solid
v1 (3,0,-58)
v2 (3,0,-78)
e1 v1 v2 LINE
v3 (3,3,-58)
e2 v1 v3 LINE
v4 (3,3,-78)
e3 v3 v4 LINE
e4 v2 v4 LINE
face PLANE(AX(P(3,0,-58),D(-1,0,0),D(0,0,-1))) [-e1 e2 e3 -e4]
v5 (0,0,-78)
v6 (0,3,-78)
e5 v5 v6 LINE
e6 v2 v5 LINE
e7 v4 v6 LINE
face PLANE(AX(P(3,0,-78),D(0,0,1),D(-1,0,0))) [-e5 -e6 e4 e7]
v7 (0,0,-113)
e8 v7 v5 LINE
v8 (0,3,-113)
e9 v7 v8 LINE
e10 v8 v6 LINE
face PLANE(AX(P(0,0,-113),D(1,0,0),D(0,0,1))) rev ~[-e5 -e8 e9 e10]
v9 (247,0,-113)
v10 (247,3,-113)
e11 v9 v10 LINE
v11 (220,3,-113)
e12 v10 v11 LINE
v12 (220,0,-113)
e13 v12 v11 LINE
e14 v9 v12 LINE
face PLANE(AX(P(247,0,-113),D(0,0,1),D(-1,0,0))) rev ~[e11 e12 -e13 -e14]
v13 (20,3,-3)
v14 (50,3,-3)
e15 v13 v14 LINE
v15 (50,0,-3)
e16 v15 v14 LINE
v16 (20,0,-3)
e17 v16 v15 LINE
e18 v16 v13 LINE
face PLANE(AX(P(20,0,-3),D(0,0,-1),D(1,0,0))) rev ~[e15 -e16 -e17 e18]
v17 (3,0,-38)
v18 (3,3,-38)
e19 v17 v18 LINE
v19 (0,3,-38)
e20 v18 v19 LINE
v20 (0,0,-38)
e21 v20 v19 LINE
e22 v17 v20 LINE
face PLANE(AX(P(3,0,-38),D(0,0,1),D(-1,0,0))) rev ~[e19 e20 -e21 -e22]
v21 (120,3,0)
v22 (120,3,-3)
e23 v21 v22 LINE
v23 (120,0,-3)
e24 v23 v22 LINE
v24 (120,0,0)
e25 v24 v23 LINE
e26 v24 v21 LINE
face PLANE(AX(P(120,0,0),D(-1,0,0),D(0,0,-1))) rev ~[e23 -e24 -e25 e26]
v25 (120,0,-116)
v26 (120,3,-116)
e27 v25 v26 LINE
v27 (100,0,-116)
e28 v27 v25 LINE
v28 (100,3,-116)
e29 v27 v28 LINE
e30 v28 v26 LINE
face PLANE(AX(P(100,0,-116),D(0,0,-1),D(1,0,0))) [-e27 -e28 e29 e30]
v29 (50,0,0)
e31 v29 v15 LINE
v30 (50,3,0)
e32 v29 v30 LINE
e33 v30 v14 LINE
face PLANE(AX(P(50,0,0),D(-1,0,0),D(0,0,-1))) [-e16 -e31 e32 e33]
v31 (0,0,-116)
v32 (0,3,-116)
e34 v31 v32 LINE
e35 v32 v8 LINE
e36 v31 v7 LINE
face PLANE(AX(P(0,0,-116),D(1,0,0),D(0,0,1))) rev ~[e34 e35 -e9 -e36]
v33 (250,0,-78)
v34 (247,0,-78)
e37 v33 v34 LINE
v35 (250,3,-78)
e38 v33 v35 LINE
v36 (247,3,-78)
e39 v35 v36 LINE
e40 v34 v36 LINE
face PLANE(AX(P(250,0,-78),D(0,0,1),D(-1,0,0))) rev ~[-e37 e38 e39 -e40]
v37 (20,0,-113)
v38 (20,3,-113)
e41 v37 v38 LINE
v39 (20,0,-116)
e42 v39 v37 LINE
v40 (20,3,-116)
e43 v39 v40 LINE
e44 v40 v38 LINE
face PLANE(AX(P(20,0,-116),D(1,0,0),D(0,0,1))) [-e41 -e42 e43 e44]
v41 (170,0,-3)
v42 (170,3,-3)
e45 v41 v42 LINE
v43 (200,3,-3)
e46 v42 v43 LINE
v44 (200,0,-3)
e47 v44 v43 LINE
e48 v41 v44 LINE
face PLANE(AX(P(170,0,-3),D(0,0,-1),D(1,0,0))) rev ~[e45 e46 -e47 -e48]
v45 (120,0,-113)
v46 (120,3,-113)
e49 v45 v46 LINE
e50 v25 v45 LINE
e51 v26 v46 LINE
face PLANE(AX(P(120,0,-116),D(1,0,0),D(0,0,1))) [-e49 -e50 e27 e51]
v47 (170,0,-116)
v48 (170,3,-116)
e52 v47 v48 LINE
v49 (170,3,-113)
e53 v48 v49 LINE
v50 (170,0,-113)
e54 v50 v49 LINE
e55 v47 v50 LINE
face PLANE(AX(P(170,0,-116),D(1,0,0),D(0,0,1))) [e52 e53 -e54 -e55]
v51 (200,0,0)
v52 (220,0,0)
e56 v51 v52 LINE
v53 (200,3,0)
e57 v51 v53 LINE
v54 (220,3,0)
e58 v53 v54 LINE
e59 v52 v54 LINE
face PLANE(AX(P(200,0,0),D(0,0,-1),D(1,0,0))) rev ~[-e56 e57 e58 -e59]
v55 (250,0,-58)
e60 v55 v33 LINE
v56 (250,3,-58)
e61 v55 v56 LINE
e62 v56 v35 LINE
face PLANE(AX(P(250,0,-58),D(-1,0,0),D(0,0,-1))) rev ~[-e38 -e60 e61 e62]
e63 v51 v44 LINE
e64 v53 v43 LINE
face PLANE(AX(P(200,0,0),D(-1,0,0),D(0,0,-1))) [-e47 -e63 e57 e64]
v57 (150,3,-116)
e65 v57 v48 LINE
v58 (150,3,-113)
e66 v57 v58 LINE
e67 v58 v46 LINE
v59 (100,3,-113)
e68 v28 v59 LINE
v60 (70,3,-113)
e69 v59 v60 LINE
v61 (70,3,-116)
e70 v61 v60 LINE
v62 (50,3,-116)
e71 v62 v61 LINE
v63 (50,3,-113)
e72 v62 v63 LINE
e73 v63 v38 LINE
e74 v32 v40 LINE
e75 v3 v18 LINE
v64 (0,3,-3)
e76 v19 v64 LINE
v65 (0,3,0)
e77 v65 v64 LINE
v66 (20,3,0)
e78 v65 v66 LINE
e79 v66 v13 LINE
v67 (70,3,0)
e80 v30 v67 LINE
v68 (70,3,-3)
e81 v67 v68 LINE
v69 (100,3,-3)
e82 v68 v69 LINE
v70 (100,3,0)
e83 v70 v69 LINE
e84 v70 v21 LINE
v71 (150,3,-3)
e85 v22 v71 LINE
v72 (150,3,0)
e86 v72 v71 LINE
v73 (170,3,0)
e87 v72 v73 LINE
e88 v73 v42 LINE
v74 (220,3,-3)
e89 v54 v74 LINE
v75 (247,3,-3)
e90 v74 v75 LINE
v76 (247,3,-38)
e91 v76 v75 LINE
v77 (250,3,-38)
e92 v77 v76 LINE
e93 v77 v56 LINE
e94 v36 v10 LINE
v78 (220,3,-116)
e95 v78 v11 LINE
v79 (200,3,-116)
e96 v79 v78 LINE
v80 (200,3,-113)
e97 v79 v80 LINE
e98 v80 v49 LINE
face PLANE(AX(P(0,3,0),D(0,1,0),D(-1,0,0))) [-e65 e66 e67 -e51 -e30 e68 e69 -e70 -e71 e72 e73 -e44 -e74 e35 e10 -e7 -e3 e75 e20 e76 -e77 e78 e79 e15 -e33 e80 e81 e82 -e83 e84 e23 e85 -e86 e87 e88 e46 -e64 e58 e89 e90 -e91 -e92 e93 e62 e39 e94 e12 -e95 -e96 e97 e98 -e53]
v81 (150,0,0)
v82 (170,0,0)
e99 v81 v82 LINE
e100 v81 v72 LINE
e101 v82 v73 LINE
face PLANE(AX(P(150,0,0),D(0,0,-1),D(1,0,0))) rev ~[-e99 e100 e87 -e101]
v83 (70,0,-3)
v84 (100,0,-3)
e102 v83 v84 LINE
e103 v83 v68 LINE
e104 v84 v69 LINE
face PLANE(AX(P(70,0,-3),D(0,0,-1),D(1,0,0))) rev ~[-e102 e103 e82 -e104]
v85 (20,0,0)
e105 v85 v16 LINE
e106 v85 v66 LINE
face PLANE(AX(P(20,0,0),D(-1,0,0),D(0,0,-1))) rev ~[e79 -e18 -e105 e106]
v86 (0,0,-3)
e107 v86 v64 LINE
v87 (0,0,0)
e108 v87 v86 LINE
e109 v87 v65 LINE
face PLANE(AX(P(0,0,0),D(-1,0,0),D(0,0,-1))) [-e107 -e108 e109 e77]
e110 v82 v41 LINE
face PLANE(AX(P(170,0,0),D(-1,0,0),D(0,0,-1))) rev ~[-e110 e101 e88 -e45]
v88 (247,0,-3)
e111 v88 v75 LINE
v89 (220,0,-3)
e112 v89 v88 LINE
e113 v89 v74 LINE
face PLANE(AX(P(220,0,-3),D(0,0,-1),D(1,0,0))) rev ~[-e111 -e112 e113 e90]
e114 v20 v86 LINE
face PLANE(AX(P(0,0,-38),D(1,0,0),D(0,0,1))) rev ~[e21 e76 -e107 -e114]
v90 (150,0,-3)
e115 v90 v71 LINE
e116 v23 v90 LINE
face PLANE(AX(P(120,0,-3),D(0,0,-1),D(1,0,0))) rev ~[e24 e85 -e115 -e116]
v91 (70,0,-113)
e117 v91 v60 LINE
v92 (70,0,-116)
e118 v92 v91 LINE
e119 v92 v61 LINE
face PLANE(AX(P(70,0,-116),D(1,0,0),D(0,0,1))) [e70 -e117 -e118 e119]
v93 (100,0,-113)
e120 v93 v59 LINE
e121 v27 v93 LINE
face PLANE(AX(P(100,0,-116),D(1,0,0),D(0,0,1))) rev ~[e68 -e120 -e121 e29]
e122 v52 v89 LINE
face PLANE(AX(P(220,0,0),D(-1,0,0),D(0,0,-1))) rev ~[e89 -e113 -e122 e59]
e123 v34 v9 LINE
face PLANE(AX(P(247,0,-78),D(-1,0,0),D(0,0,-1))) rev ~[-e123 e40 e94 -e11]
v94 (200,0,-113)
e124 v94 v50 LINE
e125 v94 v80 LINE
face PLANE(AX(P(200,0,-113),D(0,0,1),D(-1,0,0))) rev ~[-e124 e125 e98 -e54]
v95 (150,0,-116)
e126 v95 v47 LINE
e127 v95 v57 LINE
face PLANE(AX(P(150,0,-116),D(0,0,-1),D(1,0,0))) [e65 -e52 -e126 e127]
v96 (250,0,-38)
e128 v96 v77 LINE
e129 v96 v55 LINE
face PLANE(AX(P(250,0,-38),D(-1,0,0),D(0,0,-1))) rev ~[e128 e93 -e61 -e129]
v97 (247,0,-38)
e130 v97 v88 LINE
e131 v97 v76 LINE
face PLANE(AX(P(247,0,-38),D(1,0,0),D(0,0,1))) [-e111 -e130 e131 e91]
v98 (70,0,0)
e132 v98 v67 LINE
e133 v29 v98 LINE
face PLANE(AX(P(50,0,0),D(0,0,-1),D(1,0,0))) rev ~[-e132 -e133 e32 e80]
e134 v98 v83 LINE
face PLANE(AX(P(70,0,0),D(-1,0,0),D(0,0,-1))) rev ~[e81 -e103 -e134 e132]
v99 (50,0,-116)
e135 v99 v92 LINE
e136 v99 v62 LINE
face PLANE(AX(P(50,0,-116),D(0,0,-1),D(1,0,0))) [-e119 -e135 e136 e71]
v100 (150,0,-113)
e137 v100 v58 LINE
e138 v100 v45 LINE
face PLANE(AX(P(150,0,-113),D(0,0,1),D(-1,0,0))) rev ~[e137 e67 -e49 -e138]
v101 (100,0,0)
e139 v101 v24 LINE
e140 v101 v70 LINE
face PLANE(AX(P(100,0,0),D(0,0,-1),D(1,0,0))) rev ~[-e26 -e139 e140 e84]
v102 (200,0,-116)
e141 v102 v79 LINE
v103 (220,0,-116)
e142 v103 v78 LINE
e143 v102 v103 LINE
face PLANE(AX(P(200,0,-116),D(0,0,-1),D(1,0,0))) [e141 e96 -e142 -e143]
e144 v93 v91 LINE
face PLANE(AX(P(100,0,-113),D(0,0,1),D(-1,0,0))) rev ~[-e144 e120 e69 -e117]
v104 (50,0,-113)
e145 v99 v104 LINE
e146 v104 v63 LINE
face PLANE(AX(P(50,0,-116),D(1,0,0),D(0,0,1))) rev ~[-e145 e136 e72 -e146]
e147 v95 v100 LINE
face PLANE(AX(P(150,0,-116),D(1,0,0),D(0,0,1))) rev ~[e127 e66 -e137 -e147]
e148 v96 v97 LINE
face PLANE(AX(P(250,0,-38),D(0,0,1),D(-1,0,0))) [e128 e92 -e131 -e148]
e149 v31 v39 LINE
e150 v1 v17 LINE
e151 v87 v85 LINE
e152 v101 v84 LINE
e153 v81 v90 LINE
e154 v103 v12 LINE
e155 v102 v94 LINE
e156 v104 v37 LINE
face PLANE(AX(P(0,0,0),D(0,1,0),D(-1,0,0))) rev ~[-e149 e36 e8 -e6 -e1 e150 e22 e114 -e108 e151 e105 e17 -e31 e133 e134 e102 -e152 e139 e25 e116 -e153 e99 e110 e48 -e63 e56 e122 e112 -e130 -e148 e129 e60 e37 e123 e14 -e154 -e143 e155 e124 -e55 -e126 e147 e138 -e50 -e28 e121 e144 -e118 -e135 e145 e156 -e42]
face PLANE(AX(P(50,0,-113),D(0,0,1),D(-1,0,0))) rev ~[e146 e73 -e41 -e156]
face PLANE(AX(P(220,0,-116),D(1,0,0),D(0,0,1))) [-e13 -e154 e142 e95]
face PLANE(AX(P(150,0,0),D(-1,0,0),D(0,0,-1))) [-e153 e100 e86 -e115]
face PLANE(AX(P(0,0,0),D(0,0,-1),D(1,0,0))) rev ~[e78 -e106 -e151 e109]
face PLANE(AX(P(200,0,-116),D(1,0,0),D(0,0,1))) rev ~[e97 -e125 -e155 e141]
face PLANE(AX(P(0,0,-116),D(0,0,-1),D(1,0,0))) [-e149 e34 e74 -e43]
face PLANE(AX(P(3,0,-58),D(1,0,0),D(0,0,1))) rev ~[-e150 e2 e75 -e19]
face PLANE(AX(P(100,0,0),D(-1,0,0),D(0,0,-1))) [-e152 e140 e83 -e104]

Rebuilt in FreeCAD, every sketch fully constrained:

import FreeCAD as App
import Part
import Sketcher

doc = App.newDocument("Part")
body = doc.addObject("PartDesign::Body", "Body")

# Sketch on XZ plane
sketch1 = body.newObject("Sketcher::SketchObject", "Sketch")
sketch1.AttachmentSupport = (doc.getObject("XZ_Plane"), [""])
sketch1.MapMode = "FlatFace"
sketch1.addGeometry(Part.LineSegment(App.Vector(0, -38, 0), App.Vector(0, 0, 0)), False)
sketch1.addGeometry(Part.LineSegment(App.Vector(0, 0, 0), App.Vector(20, 0, 0)), False)
sketch1.addGeometry(Part.LineSegment(App.Vector(20, 0, 0), App.Vector(20, -3, 0)), False)
sketch1.addGeometry(Part.LineSegment(App.Vector(20, -3, 0), App.Vector(50, -3, 0)), False)
sketch1.addGeometry(Part.LineSegment(App.Vector(50, -3, 0), App.Vector(50, 0, 0)), False)
sketch1.addGeometry(Part.LineSegment(App.Vector(50, 0, 0), App.Vector(70, 0, 0)), False)
sketch1.addGeometry(Part.LineSegment(App.Vector(70, 0, 0), App.Vector(70, -3, 0)), False)
sketch1.addGeometry(Part.LineSegment(App.Vector(70, -3, 0), App.Vector(100, -3, 0)), False)
sketch1.addGeometry(Part.LineSegment(App.Vector(100, -3, 0), App.Vector(100, 0, 0)), False)
sketch1.addGeometry(Part.LineSegment(App.Vector(100, 0, 0), App.Vector(120, 0, 0)), False)
sketch1.addGeometry(Part.LineSegment(App.Vector(120, 0, 0), App.Vector(120, -3, 0)), False)
sketch1.addGeometry(Part.LineSegment(App.Vector(120, -3, 0), App.Vector(150, -3, 0)), False)
sketch1.addGeometry(Part.LineSegment(App.Vector(150, -3, 0), App.Vector(150, 0, 0)), False)
sketch1.addGeometry(Part.LineSegment(App.Vector(150, 0, 0), App.Vector(170, 0, 0)), False)
sketch1.addGeometry(Part.LineSegment(App.Vector(170, 0, 0), App.Vector(170, -3, 0)), False)
sketch1.addGeometry(Part.LineSegment(App.Vector(170, -3, 0), App.Vector(200, -3, 0)), False)
sketch1.addGeometry(Part.LineSegment(App.Vector(200, -3, 0), App.Vector(200, 0, 0)), False)
sketch1.addGeometry(Part.LineSegment(App.Vector(200, 0, 0), App.Vector(220, 0, 0)), False)
sketch1.addGeometry(Part.LineSegment(App.Vector(220, 0, 0), App.Vector(220, -3, 0)), False)
sketch1.addGeometry(Part.LineSegment(App.Vector(220, -3, 0), App.Vector(247, -3, 0)), False)
sketch1.addGeometry(Part.LineSegment(App.Vector(247, -3, 0), App.Vector(247, -38, 0)), False)
sketch1.addGeometry(Part.LineSegment(App.Vector(247, -38, 0), App.Vector(250, -38, 0)), False)
sketch1.addGeometry(Part.LineSegment(App.Vector(250, -38, 0), App.Vector(250, -78, 0)), False)
sketch1.addGeometry(Part.LineSegment(App.Vector(250, -78, 0), App.Vector(247, -78, 0)), False)
sketch1.addGeometry(Part.LineSegment(App.Vector(247, -78, 0), App.Vector(247, -113, 0)), False)
sketch1.addGeometry(Part.LineSegment(App.Vector(247, -113, 0), App.Vector(220, -113, 0)), False)
sketch1.addGeometry(Part.LineSegment(App.Vector(220, -113, 0), App.Vector(220, -116, 0)), False)
sketch1.addGeometry(Part.LineSegment(App.Vector(220, -116, 0), App.Vector(200, -116, 0)), False)
sketch1.addGeometry(Part.LineSegment(App.Vector(200, -116, 0), App.Vector(200, -113, 0)), False)
sketch1.addGeometry(Part.LineSegment(App.Vector(200, -113, 0), App.Vector(170, -113, 0)), False)
sketch1.addGeometry(Part.LineSegment(App.Vector(170, -113, 0), App.Vector(170, -116, 0)), False)
sketch1.addGeometry(Part.LineSegment(App.Vector(170, -116, 0), App.Vector(150, -116, 0)), False)
sketch1.addGeometry(Part.LineSegment(App.Vector(150, -116, 0), App.Vector(150, -113, 0)), False)
sketch1.addGeometry(Part.LineSegment(App.Vector(150, -113, 0), App.Vector(120, -113, 0)), False)
sketch1.addGeometry(Part.LineSegment(App.Vector(120, -113, 0), App.Vector(120, -116, 0)), False)
sketch1.addGeometry(Part.LineSegment(App.Vector(120, -116, 0), App.Vector(100, -116, 0)), False)
sketch1.addGeometry(Part.LineSegment(App.Vector(100, -116, 0), App.Vector(100, -113, 0)), False)
sketch1.addGeometry(Part.LineSegment(App.Vector(100, -113, 0), App.Vector(70, -113, 0)), False)
sketch1.addGeometry(Part.LineSegment(App.Vector(70, -113, 0), App.Vector(70, -116, 0)), False)
sketch1.addGeometry(Part.LineSegment(App.Vector(70, -116, 0), App.Vector(50, -116, 0)), False)
sketch1.addGeometry(Part.LineSegment(App.Vector(50, -116, 0), App.Vector(50, -113, 0)), False)
sketch1.addGeometry(Part.LineSegment(App.Vector(50, -113, 0), App.Vector(20, -113, 0)), False)
sketch1.addGeometry(Part.LineSegment(App.Vector(20, -113, 0), App.Vector(20, -116, 0)), False)
sketch1.addGeometry(Part.LineSegment(App.Vector(20, -116, 0), App.Vector(0, -116, 0)), False)
sketch1.addGeometry(Part.LineSegment(App.Vector(0, -116, 0), App.Vector(0, -78, 0)), False)
sketch1.addGeometry(Part.LineSegment(App.Vector(0, -78, 0), App.Vector(3, -78, 0)), False)
sketch1.addGeometry(Part.LineSegment(App.Vector(3, -78, 0), App.Vector(3, -38, 0)), False)
sketch1.addGeometry(Part.LineSegment(App.Vector(3, -38, 0), App.Vector(0, -38, 0)), False)
sketch1.addConstraint(Sketcher.Constraint("Coincident", 0, 2, 1, 1))
sketch1.addConstraint(Sketcher.Constraint("Coincident", 1, 2, 2, 1))
sketch1.addConstraint(Sketcher.Constraint("Coincident", 2, 2, 3, 1))
sketch1.addConstraint(Sketcher.Constraint("Coincident", 3, 2, 4, 1))
sketch1.addConstraint(Sketcher.Constraint("Coincident", 4, 2, 5, 1))
sketch1.addConstraint(Sketcher.Constraint("Coincident", 5, 2, 6, 1))
sketch1.addConstraint(Sketcher.Constraint("Coincident", 6, 2, 7, 1))
sketch1.addConstraint(Sketcher.Constraint("Coincident", 7, 2, 8, 1))
sketch1.addConstraint(Sketcher.Constraint("Coincident", 8, 2, 9, 1))
sketch1.addConstraint(Sketcher.Constraint("Coincident", 9, 2, 10, 1))
sketch1.addConstraint(Sketcher.Constraint("Coincident", 10, 2, 11, 1))
sketch1.addConstraint(Sketcher.Constraint("Coincident", 11, 2, 12, 1))
sketch1.addConstraint(Sketcher.Constraint("Coincident", 12, 2, 13, 1))
sketch1.addConstraint(Sketcher.Constraint("Coincident", 13, 2, 14, 1))
sketch1.addConstraint(Sketcher.Constraint("Coincident", 14, 2, 15, 1))
sketch1.addConstraint(Sketcher.Constraint("Coincident", 15, 2, 16, 1))
sketch1.addConstraint(Sketcher.Constraint("Coincident", 16, 2, 17, 1))
sketch1.addConstraint(Sketcher.Constraint("Coincident", 17, 2, 18, 1))
sketch1.addConstraint(Sketcher.Constraint("Coincident", 18, 2, 19, 1))
sketch1.addConstraint(Sketcher.Constraint("Coincident", 19, 2, 20, 1))
sketch1.addConstraint(Sketcher.Constraint("Coincident", 20, 2, 21, 1))
sketch1.addConstraint(Sketcher.Constraint("Coincident", 21, 2, 22, 1))
sketch1.addConstraint(Sketcher.Constraint("Coincident", 22, 2, 23, 1))
sketch1.addConstraint(Sketcher.Constraint("Coincident", 23, 2, 24, 1))
sketch1.addConstraint(Sketcher.Constraint("Coincident", 24, 2, 25, 1))
sketch1.addConstraint(Sketcher.Constraint("Coincident", 25, 2, 26, 1))
sketch1.addConstraint(Sketcher.Constraint("Coincident", 26, 2, 27, 1))
sketch1.addConstraint(Sketcher.Constraint("Coincident", 27, 2, 28, 1))
sketch1.addConstraint(Sketcher.Constraint("Coincident", 28, 2, 29, 1))
sketch1.addConstraint(Sketcher.Constraint("Coincident", 29, 2, 30, 1))
sketch1.addConstraint(Sketcher.Constraint("Coincident", 30, 2, 31, 1))
sketch1.addConstraint(Sketcher.Constraint("Coincident", 31, 2, 32, 1))
sketch1.addConstraint(Sketcher.Constraint("Coincident", 32, 2, 33, 1))
sketch1.addConstraint(Sketcher.Constraint("Coincident", 33, 2, 34, 1))
sketch1.addConstraint(Sketcher.Constraint("Coincident", 34, 2, 35, 1))
sketch1.addConstraint(Sketcher.Constraint("Coincident", 35, 2, 36, 1))
sketch1.addConstraint(Sketcher.Constraint("Coincident", 36, 2, 37, 1))
sketch1.addConstraint(Sketcher.Constraint("Coincident", 37, 2, 38, 1))
sketch1.addConstraint(Sketcher.Constraint("Coincident", 38, 2, 39, 1))
sketch1.addConstraint(Sketcher.Constraint("Coincident", 39, 2, 40, 1))
sketch1.addConstraint(Sketcher.Constraint("Coincident", 40, 2, 41, 1))
sketch1.addConstraint(Sketcher.Constraint("Coincident", 41, 2, 42, 1))
sketch1.addConstraint(Sketcher.Constraint("Coincident", 42, 2, 43, 1))
sketch1.addConstraint(Sketcher.Constraint("Coincident", 43, 2, 44, 1))
sketch1.addConstraint(Sketcher.Constraint("Coincident", 44, 2, 45, 1))
sketch1.addConstraint(Sketcher.Constraint("Coincident", 45, 2, 46, 1))
sketch1.addConstraint(Sketcher.Constraint("Coincident", 46, 2, 47, 1))
sketch1.addConstraint(Sketcher.Constraint("Coincident", 47, 2, 0, 1))
sketch1.addConstraint(Sketcher.Constraint("Vertical", 0))
sketch1.addConstraint(Sketcher.Constraint("Horizontal", 1))
sketch1.addConstraint(Sketcher.Constraint("Vertical", 2))
sketch1.addConstraint(Sketcher.Constraint("Horizontal", 3))
sketch1.addConstraint(Sketcher.Constraint("Vertical", 4))
sketch1.addConstraint(Sketcher.Constraint("Horizontal", 5))
sketch1.addConstraint(Sketcher.Constraint("Vertical", 6))
sketch1.addConstraint(Sketcher.Constraint("Horizontal", 7))
sketch1.addConstraint(Sketcher.Constraint("Vertical", 8))
sketch1.addConstraint(Sketcher.Constraint("Horizontal", 9))
sketch1.addConstraint(Sketcher.Constraint("Vertical", 10))
sketch1.addConstraint(Sketcher.Constraint("Horizontal", 11))
sketch1.addConstraint(Sketcher.Constraint("Vertical", 12))
sketch1.addConstraint(Sketcher.Constraint("Horizontal", 13))
sketch1.addConstraint(Sketcher.Constraint("Vertical", 14))
sketch1.addConstraint(Sketcher.Constraint("Horizontal", 15))
sketch1.addConstraint(Sketcher.Constraint("Vertical", 16))
sketch1.addConstraint(Sketcher.Constraint("Horizontal", 17))
sketch1.addConstraint(Sketcher.Constraint("Vertical", 18))
sketch1.addConstraint(Sketcher.Constraint("Horizontal", 19))
sketch1.addConstraint(Sketcher.Constraint("Vertical", 20))
sketch1.addConstraint(Sketcher.Constraint("Horizontal", 21))
sketch1.addConstraint(Sketcher.Constraint("Vertical", 22))
sketch1.addConstraint(Sketcher.Constraint("Horizontal", 23))
sketch1.addConstraint(Sketcher.Constraint("Vertical", 24))
sketch1.addConstraint(Sketcher.Constraint("Horizontal", 25))
sketch1.addConstraint(Sketcher.Constraint("Vertical", 26))
sketch1.addConstraint(Sketcher.Constraint("Horizontal", 27))
sketch1.addConstraint(Sketcher.Constraint("Vertical", 28))
sketch1.addConstraint(Sketcher.Constraint("Horizontal", 29))
sketch1.addConstraint(Sketcher.Constraint("Vertical", 30))
sketch1.addConstraint(Sketcher.Constraint("Horizontal", 31))
sketch1.addConstraint(Sketcher.Constraint("Vertical", 32))
sketch1.addConstraint(Sketcher.Constraint("Horizontal", 33))
sketch1.addConstraint(Sketcher.Constraint("Vertical", 34))
sketch1.addConstraint(Sketcher.Constraint("Horizontal", 35))
sketch1.addConstraint(Sketcher.Constraint("Vertical", 36))
sketch1.addConstraint(Sketcher.Constraint("Horizontal", 37))
sketch1.addConstraint(Sketcher.Constraint("Vertical", 38))
sketch1.addConstraint(Sketcher.Constraint("Horizontal", 39))
sketch1.addConstraint(Sketcher.Constraint("Vertical", 40))
sketch1.addConstraint(Sketcher.Constraint("Horizontal", 41))
sketch1.addConstraint(Sketcher.Constraint("Vertical", 42))
sketch1.addConstraint(Sketcher.Constraint("Horizontal", 43))
sketch1.addConstraint(Sketcher.Constraint("Vertical", 44))
sketch1.addConstraint(Sketcher.Constraint("Horizontal", 45))
sketch1.addConstraint(Sketcher.Constraint("Vertical", 46))
sketch1.addConstraint(Sketcher.Constraint("Horizontal", 47))
sketch1.addConstraint(Sketcher.Constraint("Coincident", 0, 2, -1, 1))
sketch1.addConstraint(Sketcher.Constraint("PointOnObject", 4, 2, -1))
sketch1.addConstraint(Sketcher.Constraint("PointOnObject", 8, 2, -1))
sketch1.addConstraint(Sketcher.Constraint("PointOnObject", 12, 2, -1))
sketch1.addConstraint(Sketcher.Constraint("PointOnObject", 16, 2, -1))
sketch1.addConstraint(Sketcher.Constraint("PointOnObject", 43, 2, -2))
sketch1.addConstraint(Sketcher.Constraint("Horizontal", 3, 2, 6, 2))
sketch1.addConstraint(Sketcher.Constraint("Horizontal", 7, 2, 10, 2))
sketch1.addConstraint(Sketcher.Constraint("Horizontal", 11, 2, 14, 2))
sketch1.addConstraint(Sketcher.Constraint("Horizontal", 15, 2, 18, 2))
sketch1.addConstraint(Sketcher.Constraint("Horizontal", 25, 2, 28, 2))
sketch1.addConstraint(Sketcher.Constraint("Horizontal", 27, 2, 30, 2))
sketch1.addConstraint(Sketcher.Constraint("Horizontal", 29, 2, 32, 2))
sketch1.addConstraint(Sketcher.Constraint("Horizontal", 31, 2, 34, 2))
sketch1.addConstraint(Sketcher.Constraint("Horizontal", 33, 2, 36, 2))
sketch1.addConstraint(Sketcher.Constraint("Horizontal", 35, 2, 38, 2))
sketch1.addConstraint(Sketcher.Constraint("Horizontal", 37, 2, 40, 2))
sketch1.addConstraint(Sketcher.Constraint("Horizontal", 39, 2, 42, 2))
sketch1.addConstraint(Sketcher.Constraint("Horizontal", 23, 2, 44, 2))
sketch1.addConstraint(Sketcher.Constraint("Horizontal", 21, 2, 46, 2))
sketch1.addConstraint(Sketcher.Constraint("Vertical", 20, 2, 23, 2))
sketch1.addConstraint(Sketcher.Constraint("Vertical", 18, 2, 25, 2))
sketch1.addConstraint(Sketcher.Constraint("Vertical", 16, 2, 27, 2))
sketch1.addConstraint(Sketcher.Constraint("Vertical", 14, 2, 29, 2))
sketch1.addConstraint(Sketcher.Constraint("Vertical", 12, 2, 31, 2))
sketch1.addConstraint(Sketcher.Constraint("Vertical", 10, 2, 33, 2))
sketch1.addConstraint(Sketcher.Constraint("Vertical", 8, 2, 35, 2))
sketch1.addConstraint(Sketcher.Constraint("Vertical", 6, 2, 37, 2))
sketch1.addConstraint(Sketcher.Constraint("Vertical", 4, 2, 39, 2))
sketch1.addConstraint(Sketcher.Constraint("Vertical", 2, 2, 41, 2))
sketch1.addConstraint(Sketcher.Constraint("Equal", 1, 5))
sketch1.addConstraint(Sketcher.Constraint("Equal", 3, 7))
sketch1.addConstraint(Sketcher.Constraint("Equal", 5, 9))
sketch1.addConstraint(Sketcher.Constraint("Equal", 7, 11))
sketch1.addConstraint(Sketcher.Constraint("Equal", 9, 13))
sketch1.addConstraint(Sketcher.Constraint("Equal", 11, 15))
sketch1.addConstraint(Sketcher.Constraint("Equal", 13, 17))
sketch1.addConstraint(Sketcher.Constraint("Equal", 23, 45))
sketch1.addConstraint(Sketcher.Constraint("Equal", 47, 2))
sketch1.addConstraint(Sketcher.Constraint("Equal", 20, 24))
sketch1.addConstraint(Sketcher.Constraint("Equal", 18, 26))
sketch1.addConstraint(Sketcher.Constraint("DistanceX", 1, 1, 1, 2, 20.0))
sketch1.addConstraint(Sketcher.Constraint("DistanceX", 3, 1, 3, 2, 30.0))
sketch1.addConstraint(Sketcher.Constraint("DistanceX", 21, 1, 21, 2, 3.0))
sketch1.addConstraint(Sketcher.Constraint("DistanceX", -1, 1, 21, 2, 250.0))
sketch1.addConstraint(Sketcher.Constraint("DistanceY", 24, 2, 19, 2, 110.0))
sketch1.addConstraint(Sketcher.Constraint("DistanceY", 0, 1, 0, 2, 38.0))
pad1 = body.newObject("PartDesign::Pad", "Pad")
pad1.Profile = sketch1
pad1.Length = 3
pad1.Reversed = True

doc.recompute()
